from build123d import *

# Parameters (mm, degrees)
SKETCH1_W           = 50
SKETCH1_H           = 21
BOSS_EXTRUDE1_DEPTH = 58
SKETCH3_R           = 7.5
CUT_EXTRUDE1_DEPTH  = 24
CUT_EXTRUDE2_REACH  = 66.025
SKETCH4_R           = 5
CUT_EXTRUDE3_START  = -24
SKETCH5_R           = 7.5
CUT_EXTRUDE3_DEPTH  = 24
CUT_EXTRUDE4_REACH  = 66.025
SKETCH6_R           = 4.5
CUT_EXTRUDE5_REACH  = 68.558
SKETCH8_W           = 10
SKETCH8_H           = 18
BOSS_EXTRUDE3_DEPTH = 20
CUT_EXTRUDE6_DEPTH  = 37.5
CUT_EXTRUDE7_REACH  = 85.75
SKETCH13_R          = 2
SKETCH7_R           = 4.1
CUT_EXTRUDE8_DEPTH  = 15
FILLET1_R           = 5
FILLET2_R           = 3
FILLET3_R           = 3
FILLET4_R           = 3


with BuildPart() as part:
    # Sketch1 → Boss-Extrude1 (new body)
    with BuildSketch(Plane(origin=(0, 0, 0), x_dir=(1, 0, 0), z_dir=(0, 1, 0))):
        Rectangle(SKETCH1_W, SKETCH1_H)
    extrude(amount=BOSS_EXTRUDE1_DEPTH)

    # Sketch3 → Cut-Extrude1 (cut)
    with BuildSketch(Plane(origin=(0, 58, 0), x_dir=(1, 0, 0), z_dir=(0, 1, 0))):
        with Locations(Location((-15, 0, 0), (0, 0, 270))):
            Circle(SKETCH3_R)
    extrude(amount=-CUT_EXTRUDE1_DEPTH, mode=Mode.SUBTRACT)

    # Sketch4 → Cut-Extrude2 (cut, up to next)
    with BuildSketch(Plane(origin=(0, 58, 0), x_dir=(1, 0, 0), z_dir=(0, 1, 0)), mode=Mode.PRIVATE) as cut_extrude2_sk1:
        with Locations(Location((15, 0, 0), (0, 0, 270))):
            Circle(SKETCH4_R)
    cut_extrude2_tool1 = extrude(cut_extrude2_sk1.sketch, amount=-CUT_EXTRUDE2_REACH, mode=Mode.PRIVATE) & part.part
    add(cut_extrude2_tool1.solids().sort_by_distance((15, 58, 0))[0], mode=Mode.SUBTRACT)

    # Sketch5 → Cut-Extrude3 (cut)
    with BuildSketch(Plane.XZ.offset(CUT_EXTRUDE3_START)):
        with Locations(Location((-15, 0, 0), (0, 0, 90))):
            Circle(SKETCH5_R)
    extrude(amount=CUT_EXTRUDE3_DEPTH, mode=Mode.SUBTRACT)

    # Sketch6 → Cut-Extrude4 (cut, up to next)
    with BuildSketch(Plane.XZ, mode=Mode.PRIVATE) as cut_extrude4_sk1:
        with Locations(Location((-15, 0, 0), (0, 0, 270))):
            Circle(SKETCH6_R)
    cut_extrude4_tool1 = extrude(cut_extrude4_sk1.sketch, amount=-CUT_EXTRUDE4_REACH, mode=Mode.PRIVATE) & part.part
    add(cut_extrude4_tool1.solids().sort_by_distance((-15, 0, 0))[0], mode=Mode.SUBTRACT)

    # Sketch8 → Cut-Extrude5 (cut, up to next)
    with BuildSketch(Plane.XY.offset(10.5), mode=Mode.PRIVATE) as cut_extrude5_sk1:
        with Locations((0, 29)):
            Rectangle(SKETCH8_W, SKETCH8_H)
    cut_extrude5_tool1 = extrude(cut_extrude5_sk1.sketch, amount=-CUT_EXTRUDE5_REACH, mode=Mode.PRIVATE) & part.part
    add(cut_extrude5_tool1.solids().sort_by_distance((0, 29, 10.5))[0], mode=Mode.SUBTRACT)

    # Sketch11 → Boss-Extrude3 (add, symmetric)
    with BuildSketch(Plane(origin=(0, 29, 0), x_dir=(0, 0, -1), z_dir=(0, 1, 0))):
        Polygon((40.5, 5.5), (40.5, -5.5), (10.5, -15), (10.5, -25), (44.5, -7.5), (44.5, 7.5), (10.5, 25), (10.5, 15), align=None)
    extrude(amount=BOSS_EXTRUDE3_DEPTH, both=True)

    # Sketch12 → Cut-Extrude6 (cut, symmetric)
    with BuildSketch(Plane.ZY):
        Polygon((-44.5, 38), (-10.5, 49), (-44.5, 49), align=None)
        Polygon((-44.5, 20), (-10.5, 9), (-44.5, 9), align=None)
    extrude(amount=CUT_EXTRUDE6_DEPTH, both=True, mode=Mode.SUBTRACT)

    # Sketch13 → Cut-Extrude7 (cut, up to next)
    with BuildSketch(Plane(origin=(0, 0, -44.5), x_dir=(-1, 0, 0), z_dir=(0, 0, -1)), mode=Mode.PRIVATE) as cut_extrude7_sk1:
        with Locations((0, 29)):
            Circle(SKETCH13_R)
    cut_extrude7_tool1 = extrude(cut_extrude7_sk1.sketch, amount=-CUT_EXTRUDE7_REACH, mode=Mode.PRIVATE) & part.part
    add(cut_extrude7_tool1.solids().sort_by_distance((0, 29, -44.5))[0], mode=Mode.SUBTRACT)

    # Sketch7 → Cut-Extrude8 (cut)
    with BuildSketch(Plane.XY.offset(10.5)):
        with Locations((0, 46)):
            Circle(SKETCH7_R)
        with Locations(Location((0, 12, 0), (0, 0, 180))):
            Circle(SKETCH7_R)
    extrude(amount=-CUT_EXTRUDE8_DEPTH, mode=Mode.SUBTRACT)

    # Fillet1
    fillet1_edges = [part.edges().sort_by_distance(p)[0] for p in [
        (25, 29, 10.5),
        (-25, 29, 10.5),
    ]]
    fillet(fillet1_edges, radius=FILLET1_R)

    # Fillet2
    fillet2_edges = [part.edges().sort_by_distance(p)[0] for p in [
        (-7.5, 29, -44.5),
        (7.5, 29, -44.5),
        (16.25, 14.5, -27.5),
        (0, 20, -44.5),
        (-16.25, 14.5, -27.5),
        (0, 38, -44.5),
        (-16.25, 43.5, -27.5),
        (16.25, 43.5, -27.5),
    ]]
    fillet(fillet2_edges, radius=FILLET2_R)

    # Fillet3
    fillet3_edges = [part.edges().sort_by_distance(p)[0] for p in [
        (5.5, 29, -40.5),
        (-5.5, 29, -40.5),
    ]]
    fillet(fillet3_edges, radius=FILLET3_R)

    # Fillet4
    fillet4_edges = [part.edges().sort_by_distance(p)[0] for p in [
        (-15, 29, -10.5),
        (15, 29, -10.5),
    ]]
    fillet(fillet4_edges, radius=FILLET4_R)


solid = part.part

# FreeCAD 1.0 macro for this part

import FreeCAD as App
import Part
import Sketcher
Q = App.Units.Quantity


def edges_at(feature, points):
    """Names of the edges that pass closest to the given points."""
    edges = feature.Shape.Edges
    near = lambda p: min(range(len(edges)), key=lambda i: edges[i].distToShape(Part.Vertex(*p))[0])
    return sorted({f"Edge{near(p) + 1}" for p in points})

doc = App.newDocument("Part")
body = doc.addObject("PartDesign::Body", "Body")

# Sketch on XZ plane
sketch1 = doc.addObject("Sketcher::SketchObject", "Sketch")
body.addObject(sketch1)
sketch1.AttachmentSupport = (doc.XZ_Plane, [""])
sketch1.MapMode = "FlatFace"
sketch1.addGeometry([
    Part.LineSegment(App.Vector(-25, -10, 0), App.Vector(-25, 10, 0)),
    Part.LineSegment(App.Vector(-25, 10, 0), App.Vector(25, 10, 0)),
    Part.LineSegment(App.Vector(25, 10, 0), App.Vector(25, -10, 0)),
    Part.LineSegment(App.Vector(25, -10, 0), App.Vector(-25, -10, 0)),
], False)
sketch1.addConstraint([
    Sketcher.Constraint("Coincident", 0, 2, 1, 1),
    Sketcher.Constraint("Coincident", 1, 2, 2, 1),
    Sketcher.Constraint("Coincident", 2, 2, 3, 1),
    Sketcher.Constraint("Coincident", 3, 2, 0, 1),
    Sketcher.Constraint("Vertical", 0),
    Sketcher.Constraint("Horizontal", 1),
    Sketcher.Constraint("Vertical", 2),
    Sketcher.Constraint("Horizontal", 3),
    Sketcher.Constraint("Symmetric", 0, 2, 2, 2, -1, 1),
    Sketcher.Constraint("DistanceX", 1, 1, 1, 2, Q("50 mm")),
    Sketcher.Constraint("DistanceY", 0, 1, 0, 2, Q("21 mm")),
])
pad1 = doc.addObject("PartDesign::Pad", "Pad")
body.addObject(pad1)
pad1.Profile = sketch1
pad1.Length = 58
pad1.Reversed = True

# Sketch on XZ plane
sketch2 = doc.addObject("Sketcher::SketchObject", "Sketch001")
body.addObject(sketch2)
sketch2.AttachmentSupport = (doc.XZ_Plane, [""])
sketch2.MapMode = "FlatFace"
sketch2.AttachmentOffset = App.Placement(App.Vector(0, 0, -58), App.Rotation())
sketch2.addGeometry(Part.Circle(App.Vector(-15, 0, 0), App.Vector(0, 0, 1), 8), False)
sketch2.addConstraint([
    Sketcher.Constraint("PointOnObject", 0, 3, -1),
    Sketcher.Constraint("Diameter", 0, Q("15 mm")),
    Sketcher.Constraint("DistanceX", 0, 3, -1, 1, Q("15 mm")),
])
pocket1 = doc.addObject("PartDesign::Pocket", "Pocket")
body.addObject(pocket1)
pocket1.Profile = sketch2
pocket1.Length = 24
pocket1.Reversed = True

# Sketch on XZ plane
sketch3 = doc.addObject("Sketcher::SketchObject", "Sketch002")
body.addObject(sketch3)
sketch3.AttachmentSupport = (doc.XZ_Plane, [""])
sketch3.MapMode = "FlatFace"
sketch3.AttachmentOffset = App.Placement(App.Vector(0, 0, -58), App.Rotation())
sketch3.addGeometry(Part.Circle(App.Vector(15, 0, 0), App.Vector(0, 0, 1), 5), False)
sketch3.addConstraint([
    Sketcher.Constraint("PointOnObject", 0, 3, -1),
    Sketcher.Constraint("Diameter", 0, Q("10 mm")),
    Sketcher.Constraint("DistanceX", -1, 1, 0, 3, Q("15 mm")),
])
pocket2 = doc.addObject("PartDesign::Pocket", "Pocket001")
body.addObject(pocket2)
pocket2.Profile = sketch3
pocket2.Type = "UpToFirst"
pocket2.Reversed = True

# Sketch on XZ plane
sketch4 = doc.addObject("Sketcher::SketchObject", "Sketch003")
body.addObject(sketch4)
sketch4.AttachmentSupport = (doc.XZ_Plane, [""])
sketch4.MapMode = "FlatFace"
sketch4.AttachmentOffset = App.Placement(App.Vector(0, 0, -24), App.Rotation())
sketch4.addGeometry(Part.Circle(App.Vector(-15, 0, 0), App.Vector(0, 0, 1), 8), False)
sketch4.addConstraint([
    Sketcher.Constraint("PointOnObject", 0, 3, -1),
    Sketcher.Constraint("Diameter", 0, Q("15 mm")),
    Sketcher.Constraint("DistanceX", 0, 3, -1, 1, Q("15 mm")),
])
pocket3 = doc.addObject("PartDesign::Pocket", "Pocket002")
body.addObject(pocket3)
pocket3.Profile = sketch4
pocket3.Length = 24
pocket3.Reversed = True

# Sketch on XZ plane
sketch5 = doc.addObject("Sketcher::SketchObject", "Sketch004")
body.addObject(sketch5)
sketch5.AttachmentSupport = (doc.XZ_Plane, [""])
sketch5.MapMode = "FlatFace"
sketch5.addGeometry(Part.Circle(App.Vector(-15, 0, 0), App.Vector(0, 0, 1), 4.5), False)
sketch5.addConstraint([
    Sketcher.Constraint("PointOnObject", 0, 3, -1),
    Sketcher.Constraint("Diameter", 0, Q("9 mm")),
    Sketcher.Constraint("DistanceX", 0, 3, -1, 1, Q("15 mm")),
])
pocket4 = doc.addObject("PartDesign::Pocket", "Pocket003")
body.addObject(pocket4)
pocket4.Profile = sketch5
pocket4.Length = 34

# Sketch on XY plane
sketch6 = doc.addObject("Sketcher::SketchObject", "Sketch005")
body.addObject(sketch6)
sketch6.AttachmentSupport = (doc.XY_Plane, [""])
sketch6.MapMode = "FlatFace"
sketch6.AttachmentOffset = App.Placement(App.Vector(0, 0, 10.5), App.Rotation())
sketch6.addGeometry([
    Part.LineSegment(App.Vector(-5, 38, 0), App.Vector(-5, 20, 0)),
    Part.LineSegment(App.Vector(-5, 20, 0), App.Vector(5, 20, 0)),
    Part.LineSegment(App.Vector(5, 20, 0), App.Vector(5, 38, 0)),
    Part.LineSegment(App.Vector(5, 38, 0), App.Vector(-5, 38, 0)),
], False)
sketch6.addConstraint([
    Sketcher.Constraint("Coincident", 0, 2, 1, 1),
    Sketcher.Constraint("Coincident", 1, 2, 2, 1),
    Sketcher.Constraint("Coincident", 2, 2, 3, 1),
    Sketcher.Constraint("Coincident", 3, 2, 0, 1),
    Sketcher.Constraint("Vertical", 0),
    Sketcher.Constraint("Horizontal", 1),
    Sketcher.Constraint("Vertical", 2),
    Sketcher.Constraint("Horizontal", 3),
    Sketcher.Constraint("DistanceX", 1, 1, 1, 2, Q("10 mm")),
    Sketcher.Constraint("DistanceY", 0, 2, 0, 1, Q("18 mm")),
    Sketcher.Constraint("DistanceX", 0, 2, -1, 1, Q("5 mm")),
    Sketcher.Constraint("DistanceY", -1, 1, 0, 2, Q("20 mm")),
])
pocket5 = doc.addObject("PartDesign::Pocket", "Pocket004")
body.addObject(pocket5)
pocket5.Profile = sketch6
pocket5.Type = "UpToFirst"

# Sketch on XZ plane
sketch7 = doc.addObject("Sketcher::SketchObject", "Sketch006")
body.addObject(sketch7)
sketch7.AttachmentSupport = (doc.XZ_Plane, [""])
sketch7.MapMode = "FlatFace"
sketch7.AttachmentOffset = App.Placement(App.Vector(0, 0, -29), App.Rotation())
sketch7.addGeometry([
    Part.LineSegment(App.Vector(-6, -40, 0), App.Vector(6, -40, 0)),  # 0
    Part.LineSegment(App.Vector(6, -40, 0), App.Vector(15, -10, 0)),  # 1
    Part.LineSegment(App.Vector(15, -10, 0), App.Vector(25, -10, 0)),  # 2
    Part.LineSegment(App.Vector(25, -10, 0), App.Vector(8, -44, 0)),  # 3
    Part.LineSegment(App.Vector(8, -44, 0), App.Vector(-8, -44, 0)),  # 4
    Part.LineSegment(App.Vector(-8, -44, 0), App.Vector(-25, -10, 0)),  # 5
    Part.LineSegment(App.Vector(-25, -10, 0), App.Vector(-15, -10, 0)),  # 6
    Part.LineSegment(App.Vector(-15, -10, 0), App.Vector(-6, -40, 0)),  # 7
], False)
sketch7.addConstraint([
    Sketcher.Constraint("Coincident", 0, 2, 1, 1),
    Sketcher.Constraint("Coincident", 1, 2, 2, 1),
    Sketcher.Constraint("Coincident", 2, 2, 3, 1),
    Sketcher.Constraint("Coincident", 3, 2, 4, 1),
    Sketcher.Constraint("Coincident", 4, 2, 5, 1),
    Sketcher.Constraint("Coincident", 5, 2, 6, 1),
    Sketcher.Constraint("Coincident", 6, 2, 7, 1),
    Sketcher.Constraint("Coincident", 7, 2, 0, 1),
    Sketcher.Constraint("Horizontal", 0),
    Sketcher.Constraint("Horizontal", 2),
    Sketcher.Constraint("Horizontal", 4),
    Sketcher.Constraint("Horizontal", 6),
    Sketcher.Constraint("Symmetric", 2, 2, 5, 2, -2),
    Sketcher.Constraint("Equal", 2, 6),
    Sketcher.Constraint("Equal", 3, 5),
    Sketcher.Constraint("Equal", 1, 7),
    Sketcher.Constraint("DistanceX", 0, 1, 0, 2, Q("11 mm")),
    Sketcher.Constraint("DistanceX", 2, 1, 2, 2, Q("10 mm")),
    Sketcher.Constraint("DistanceX", 4, 2, 4, 1, Q("15 mm")),
    Sketcher.Constraint("DistanceX", -1, 1, 1, 2, Q("15 mm")),
    Sketcher.Constraint("DistanceY", 0, 2, 1, 2, Q("30 mm")),
    Sketcher.Constraint("DistanceY", 3, 2, 0, 2, Q("4 mm")),
    Sketcher.Constraint("DistanceY", 0, 2, -1, 1, Q("40.5 mm")),
])
pad2 = doc.addObject("PartDesign::Pad", "Pad001")
body.addObject(pad2)
pad2.Profile = sketch7
pad2.Length = 40
pad2.Midplane = True

# Sketch on YZ plane
sketch8 = doc.addObject("Sketcher::SketchObject", "Sketch007")
body.addObject(sketch8)
sketch8.AttachmentSupport = (doc.YZ_Plane, [""])
sketch8.MapMode = "FlatFace"
sketch8.addGeometry([
    Part.LineSegment(App.Vector(38, -44, 0), App.Vector(49, -10, 0)),  # 0
    Part.LineSegment(App.Vector(49, -10, 0), App.Vector(49, -44, 0)),  # 1
    Part.LineSegment(App.Vector(49, -44, 0), App.Vector(38, -44, 0)),  # 2
    Part.LineSegment(App.Vector(9, -10, 0), App.Vector(20, -44, 0)),  # 3
    Part.LineSegment(App.Vector(20, -44, 0), App.Vector(9, -44, 0)),  # 4
    Part.LineSegment(App.Vector(9, -44, 0), App.Vector(9, -10, 0)),  # 5
], False)
sketch8.addConstraint([
    Sketcher.Constraint("Coincident", 0, 2, 1, 1),
    Sketcher.Constraint("Coincident", 1, 2, 2, 1),
    Sketcher.Constraint("Coincident", 2, 2, 0, 1),
    Sketcher.Constraint("Coincident", 3, 2, 4, 1),
    Sketcher.Constraint("Coincident", 4, 2, 5, 1),
    Sketcher.Constraint("Coincident", 5, 2, 3, 1),
    Sketcher.Constraint("Vertical", 1),
    Sketcher.Constraint("Horizontal", 2),
    Sketcher.Constraint("Horizontal", 4),
    Sketcher.Constraint("Vertical", 5),
    Sketcher.Constraint("Horizontal", 2, 2, 3, 2),
    Sketcher.Constraint("Horizontal", 0, 2, 5, 2),
    Sketcher.Constraint("Equal", 2, 4),
    Sketcher.Constraint("DistanceX", 2, 2, 2, 1, Q("11 mm")),
    Sketcher.Constraint("DistanceY", 1, 2, 1, 1, Q("34 mm")),
    Sketcher.Constraint("DistanceX", -1, 1, 0, 2, Q("49 mm")),
    Sketcher.Constraint("DistanceX", -1, 1, 3, 2, Q("20 mm")),
    Sketcher.Constraint("DistanceY", 0, 2, -1, 1, Q("10.5 mm")),
])
pocket6 = doc.addObject("PartDesign::Pocket", "Pocket005")
body.addObject(pocket6)
pocket6.Profile = sketch8
pocket6.Length = 75
pocket6.Midplane = True

# Sketch on XY plane
sketch9 = doc.addObject("Sketcher::SketchObject", "Sketch008")
body.addObject(sketch9)
sketch9.AttachmentSupport = (doc.XY_Plane, [""])
sketch9.MapMode = "FlatFace"
sketch9.AttachmentOffset = App.Placement(App.Vector(0, 0, -44.5), App.Rotation())
sketch9.addGeometry(Part.Circle(App.Vector(0, 29, 0), App.Vector(0, 0, 1), 2), False)
sketch9.addConstraint([
    Sketcher.Constraint("PointOnObject", 0, 3, -2),
    Sketcher.Constraint("Diameter", 0, Q("4 mm")),
    Sketcher.Constraint("DistanceY", -1, 1, 0, 3, Q("29 mm")),
])
pocket7 = doc.addObject("PartDesign::Pocket", "Pocket006")
body.addObject(pocket7)
pocket7.Profile = sketch9
pocket7.Type = "UpToFirst"
pocket7.Reversed = True

# Sketch on XY plane
sketch10 = doc.addObject("Sketcher::SketchObject", "Sketch009")
body.addObject(sketch10)
sketch10.AttachmentSupport = (doc.XY_Plane, [""])
sketch10.MapMode = "FlatFace"
sketch10.AttachmentOffset = App.Placement(App.Vector(0, 0, 10.5), App.Rotation())
sketch10.addGeometry([
    Part.Circle(App.Vector(0, 46, 0), App.Vector(0, 0, 1), 4.1),
    Part.Circle(App.Vector(0, 12, 0), App.Vector(0, 0, 1), 4.1),
], False)
sketch10.addConstraint([
    Sketcher.Constraint("Equal", 0, 1),
    Sketcher.Constraint("PointOnObject", 0, 3, -2),
    Sketcher.Constraint("PointOnObject", 1, 3, -2),
    Sketcher.Constraint("Diameter", 0, Q("8.2 mm")),
    Sketcher.Constraint("DistanceY", -1, 1, 0, 3, Q("46 mm")),
    Sketcher.Constraint("DistanceY", -1, 1, 1, 3, Q("12 mm")),
])
pocket8 = doc.addObject("PartDesign::Pocket", "Pocket007")
body.addObject(pocket8)
pocket8.Profile = sketch10
pocket8.Length = 15
doc.recompute()

fillet = doc.addObject("PartDesign::Fillet", "Fillet")
body.addObject(fillet)
fillet.Base = (pocket8, edges_at(pocket8, [(25, 29, 10.5), (-25, 29, 10.5)]))
fillet.Radius = 5
doc.recompute()

fillet2 = doc.addObject("PartDesign::Fillet", "Fillet001")
body.addObject(fillet2)
fillet2.Base = (fillet, edges_at(fillet, [
    (-7.5, 29, -44.5),
    (7.5, 29, -44.5),
    (16.25, 14.5, -27.5),
    (0, 20, -44.5),
    (-16.25, 14.5, -27.5),
    (0, 38, -44.5),
    (-16.25, 43.5, -27.5),
    (16.25, 43.5, -27.5),
]))
fillet2.Radius = 3
doc.recompute()

fillet3 = doc.addObject("PartDesign::Fillet", "Fillet002")
body.addObject(fillet3)
fillet3.Base = (fillet2, edges_at(fillet2, [(5.5, 29, -40.5), (-5.5, 29, -40.5)]))
fillet3.Radius = 3
doc.recompute()

fillet4 = doc.addObject("PartDesign::Fillet", "Fillet003")
body.addObject(fillet4)
fillet4.Base = (fillet3, edges_at(fillet3, [(-15, 29, -10.5), (15, 29, -10.5)]))
fillet4.Radius = 3

doc.recompute()
